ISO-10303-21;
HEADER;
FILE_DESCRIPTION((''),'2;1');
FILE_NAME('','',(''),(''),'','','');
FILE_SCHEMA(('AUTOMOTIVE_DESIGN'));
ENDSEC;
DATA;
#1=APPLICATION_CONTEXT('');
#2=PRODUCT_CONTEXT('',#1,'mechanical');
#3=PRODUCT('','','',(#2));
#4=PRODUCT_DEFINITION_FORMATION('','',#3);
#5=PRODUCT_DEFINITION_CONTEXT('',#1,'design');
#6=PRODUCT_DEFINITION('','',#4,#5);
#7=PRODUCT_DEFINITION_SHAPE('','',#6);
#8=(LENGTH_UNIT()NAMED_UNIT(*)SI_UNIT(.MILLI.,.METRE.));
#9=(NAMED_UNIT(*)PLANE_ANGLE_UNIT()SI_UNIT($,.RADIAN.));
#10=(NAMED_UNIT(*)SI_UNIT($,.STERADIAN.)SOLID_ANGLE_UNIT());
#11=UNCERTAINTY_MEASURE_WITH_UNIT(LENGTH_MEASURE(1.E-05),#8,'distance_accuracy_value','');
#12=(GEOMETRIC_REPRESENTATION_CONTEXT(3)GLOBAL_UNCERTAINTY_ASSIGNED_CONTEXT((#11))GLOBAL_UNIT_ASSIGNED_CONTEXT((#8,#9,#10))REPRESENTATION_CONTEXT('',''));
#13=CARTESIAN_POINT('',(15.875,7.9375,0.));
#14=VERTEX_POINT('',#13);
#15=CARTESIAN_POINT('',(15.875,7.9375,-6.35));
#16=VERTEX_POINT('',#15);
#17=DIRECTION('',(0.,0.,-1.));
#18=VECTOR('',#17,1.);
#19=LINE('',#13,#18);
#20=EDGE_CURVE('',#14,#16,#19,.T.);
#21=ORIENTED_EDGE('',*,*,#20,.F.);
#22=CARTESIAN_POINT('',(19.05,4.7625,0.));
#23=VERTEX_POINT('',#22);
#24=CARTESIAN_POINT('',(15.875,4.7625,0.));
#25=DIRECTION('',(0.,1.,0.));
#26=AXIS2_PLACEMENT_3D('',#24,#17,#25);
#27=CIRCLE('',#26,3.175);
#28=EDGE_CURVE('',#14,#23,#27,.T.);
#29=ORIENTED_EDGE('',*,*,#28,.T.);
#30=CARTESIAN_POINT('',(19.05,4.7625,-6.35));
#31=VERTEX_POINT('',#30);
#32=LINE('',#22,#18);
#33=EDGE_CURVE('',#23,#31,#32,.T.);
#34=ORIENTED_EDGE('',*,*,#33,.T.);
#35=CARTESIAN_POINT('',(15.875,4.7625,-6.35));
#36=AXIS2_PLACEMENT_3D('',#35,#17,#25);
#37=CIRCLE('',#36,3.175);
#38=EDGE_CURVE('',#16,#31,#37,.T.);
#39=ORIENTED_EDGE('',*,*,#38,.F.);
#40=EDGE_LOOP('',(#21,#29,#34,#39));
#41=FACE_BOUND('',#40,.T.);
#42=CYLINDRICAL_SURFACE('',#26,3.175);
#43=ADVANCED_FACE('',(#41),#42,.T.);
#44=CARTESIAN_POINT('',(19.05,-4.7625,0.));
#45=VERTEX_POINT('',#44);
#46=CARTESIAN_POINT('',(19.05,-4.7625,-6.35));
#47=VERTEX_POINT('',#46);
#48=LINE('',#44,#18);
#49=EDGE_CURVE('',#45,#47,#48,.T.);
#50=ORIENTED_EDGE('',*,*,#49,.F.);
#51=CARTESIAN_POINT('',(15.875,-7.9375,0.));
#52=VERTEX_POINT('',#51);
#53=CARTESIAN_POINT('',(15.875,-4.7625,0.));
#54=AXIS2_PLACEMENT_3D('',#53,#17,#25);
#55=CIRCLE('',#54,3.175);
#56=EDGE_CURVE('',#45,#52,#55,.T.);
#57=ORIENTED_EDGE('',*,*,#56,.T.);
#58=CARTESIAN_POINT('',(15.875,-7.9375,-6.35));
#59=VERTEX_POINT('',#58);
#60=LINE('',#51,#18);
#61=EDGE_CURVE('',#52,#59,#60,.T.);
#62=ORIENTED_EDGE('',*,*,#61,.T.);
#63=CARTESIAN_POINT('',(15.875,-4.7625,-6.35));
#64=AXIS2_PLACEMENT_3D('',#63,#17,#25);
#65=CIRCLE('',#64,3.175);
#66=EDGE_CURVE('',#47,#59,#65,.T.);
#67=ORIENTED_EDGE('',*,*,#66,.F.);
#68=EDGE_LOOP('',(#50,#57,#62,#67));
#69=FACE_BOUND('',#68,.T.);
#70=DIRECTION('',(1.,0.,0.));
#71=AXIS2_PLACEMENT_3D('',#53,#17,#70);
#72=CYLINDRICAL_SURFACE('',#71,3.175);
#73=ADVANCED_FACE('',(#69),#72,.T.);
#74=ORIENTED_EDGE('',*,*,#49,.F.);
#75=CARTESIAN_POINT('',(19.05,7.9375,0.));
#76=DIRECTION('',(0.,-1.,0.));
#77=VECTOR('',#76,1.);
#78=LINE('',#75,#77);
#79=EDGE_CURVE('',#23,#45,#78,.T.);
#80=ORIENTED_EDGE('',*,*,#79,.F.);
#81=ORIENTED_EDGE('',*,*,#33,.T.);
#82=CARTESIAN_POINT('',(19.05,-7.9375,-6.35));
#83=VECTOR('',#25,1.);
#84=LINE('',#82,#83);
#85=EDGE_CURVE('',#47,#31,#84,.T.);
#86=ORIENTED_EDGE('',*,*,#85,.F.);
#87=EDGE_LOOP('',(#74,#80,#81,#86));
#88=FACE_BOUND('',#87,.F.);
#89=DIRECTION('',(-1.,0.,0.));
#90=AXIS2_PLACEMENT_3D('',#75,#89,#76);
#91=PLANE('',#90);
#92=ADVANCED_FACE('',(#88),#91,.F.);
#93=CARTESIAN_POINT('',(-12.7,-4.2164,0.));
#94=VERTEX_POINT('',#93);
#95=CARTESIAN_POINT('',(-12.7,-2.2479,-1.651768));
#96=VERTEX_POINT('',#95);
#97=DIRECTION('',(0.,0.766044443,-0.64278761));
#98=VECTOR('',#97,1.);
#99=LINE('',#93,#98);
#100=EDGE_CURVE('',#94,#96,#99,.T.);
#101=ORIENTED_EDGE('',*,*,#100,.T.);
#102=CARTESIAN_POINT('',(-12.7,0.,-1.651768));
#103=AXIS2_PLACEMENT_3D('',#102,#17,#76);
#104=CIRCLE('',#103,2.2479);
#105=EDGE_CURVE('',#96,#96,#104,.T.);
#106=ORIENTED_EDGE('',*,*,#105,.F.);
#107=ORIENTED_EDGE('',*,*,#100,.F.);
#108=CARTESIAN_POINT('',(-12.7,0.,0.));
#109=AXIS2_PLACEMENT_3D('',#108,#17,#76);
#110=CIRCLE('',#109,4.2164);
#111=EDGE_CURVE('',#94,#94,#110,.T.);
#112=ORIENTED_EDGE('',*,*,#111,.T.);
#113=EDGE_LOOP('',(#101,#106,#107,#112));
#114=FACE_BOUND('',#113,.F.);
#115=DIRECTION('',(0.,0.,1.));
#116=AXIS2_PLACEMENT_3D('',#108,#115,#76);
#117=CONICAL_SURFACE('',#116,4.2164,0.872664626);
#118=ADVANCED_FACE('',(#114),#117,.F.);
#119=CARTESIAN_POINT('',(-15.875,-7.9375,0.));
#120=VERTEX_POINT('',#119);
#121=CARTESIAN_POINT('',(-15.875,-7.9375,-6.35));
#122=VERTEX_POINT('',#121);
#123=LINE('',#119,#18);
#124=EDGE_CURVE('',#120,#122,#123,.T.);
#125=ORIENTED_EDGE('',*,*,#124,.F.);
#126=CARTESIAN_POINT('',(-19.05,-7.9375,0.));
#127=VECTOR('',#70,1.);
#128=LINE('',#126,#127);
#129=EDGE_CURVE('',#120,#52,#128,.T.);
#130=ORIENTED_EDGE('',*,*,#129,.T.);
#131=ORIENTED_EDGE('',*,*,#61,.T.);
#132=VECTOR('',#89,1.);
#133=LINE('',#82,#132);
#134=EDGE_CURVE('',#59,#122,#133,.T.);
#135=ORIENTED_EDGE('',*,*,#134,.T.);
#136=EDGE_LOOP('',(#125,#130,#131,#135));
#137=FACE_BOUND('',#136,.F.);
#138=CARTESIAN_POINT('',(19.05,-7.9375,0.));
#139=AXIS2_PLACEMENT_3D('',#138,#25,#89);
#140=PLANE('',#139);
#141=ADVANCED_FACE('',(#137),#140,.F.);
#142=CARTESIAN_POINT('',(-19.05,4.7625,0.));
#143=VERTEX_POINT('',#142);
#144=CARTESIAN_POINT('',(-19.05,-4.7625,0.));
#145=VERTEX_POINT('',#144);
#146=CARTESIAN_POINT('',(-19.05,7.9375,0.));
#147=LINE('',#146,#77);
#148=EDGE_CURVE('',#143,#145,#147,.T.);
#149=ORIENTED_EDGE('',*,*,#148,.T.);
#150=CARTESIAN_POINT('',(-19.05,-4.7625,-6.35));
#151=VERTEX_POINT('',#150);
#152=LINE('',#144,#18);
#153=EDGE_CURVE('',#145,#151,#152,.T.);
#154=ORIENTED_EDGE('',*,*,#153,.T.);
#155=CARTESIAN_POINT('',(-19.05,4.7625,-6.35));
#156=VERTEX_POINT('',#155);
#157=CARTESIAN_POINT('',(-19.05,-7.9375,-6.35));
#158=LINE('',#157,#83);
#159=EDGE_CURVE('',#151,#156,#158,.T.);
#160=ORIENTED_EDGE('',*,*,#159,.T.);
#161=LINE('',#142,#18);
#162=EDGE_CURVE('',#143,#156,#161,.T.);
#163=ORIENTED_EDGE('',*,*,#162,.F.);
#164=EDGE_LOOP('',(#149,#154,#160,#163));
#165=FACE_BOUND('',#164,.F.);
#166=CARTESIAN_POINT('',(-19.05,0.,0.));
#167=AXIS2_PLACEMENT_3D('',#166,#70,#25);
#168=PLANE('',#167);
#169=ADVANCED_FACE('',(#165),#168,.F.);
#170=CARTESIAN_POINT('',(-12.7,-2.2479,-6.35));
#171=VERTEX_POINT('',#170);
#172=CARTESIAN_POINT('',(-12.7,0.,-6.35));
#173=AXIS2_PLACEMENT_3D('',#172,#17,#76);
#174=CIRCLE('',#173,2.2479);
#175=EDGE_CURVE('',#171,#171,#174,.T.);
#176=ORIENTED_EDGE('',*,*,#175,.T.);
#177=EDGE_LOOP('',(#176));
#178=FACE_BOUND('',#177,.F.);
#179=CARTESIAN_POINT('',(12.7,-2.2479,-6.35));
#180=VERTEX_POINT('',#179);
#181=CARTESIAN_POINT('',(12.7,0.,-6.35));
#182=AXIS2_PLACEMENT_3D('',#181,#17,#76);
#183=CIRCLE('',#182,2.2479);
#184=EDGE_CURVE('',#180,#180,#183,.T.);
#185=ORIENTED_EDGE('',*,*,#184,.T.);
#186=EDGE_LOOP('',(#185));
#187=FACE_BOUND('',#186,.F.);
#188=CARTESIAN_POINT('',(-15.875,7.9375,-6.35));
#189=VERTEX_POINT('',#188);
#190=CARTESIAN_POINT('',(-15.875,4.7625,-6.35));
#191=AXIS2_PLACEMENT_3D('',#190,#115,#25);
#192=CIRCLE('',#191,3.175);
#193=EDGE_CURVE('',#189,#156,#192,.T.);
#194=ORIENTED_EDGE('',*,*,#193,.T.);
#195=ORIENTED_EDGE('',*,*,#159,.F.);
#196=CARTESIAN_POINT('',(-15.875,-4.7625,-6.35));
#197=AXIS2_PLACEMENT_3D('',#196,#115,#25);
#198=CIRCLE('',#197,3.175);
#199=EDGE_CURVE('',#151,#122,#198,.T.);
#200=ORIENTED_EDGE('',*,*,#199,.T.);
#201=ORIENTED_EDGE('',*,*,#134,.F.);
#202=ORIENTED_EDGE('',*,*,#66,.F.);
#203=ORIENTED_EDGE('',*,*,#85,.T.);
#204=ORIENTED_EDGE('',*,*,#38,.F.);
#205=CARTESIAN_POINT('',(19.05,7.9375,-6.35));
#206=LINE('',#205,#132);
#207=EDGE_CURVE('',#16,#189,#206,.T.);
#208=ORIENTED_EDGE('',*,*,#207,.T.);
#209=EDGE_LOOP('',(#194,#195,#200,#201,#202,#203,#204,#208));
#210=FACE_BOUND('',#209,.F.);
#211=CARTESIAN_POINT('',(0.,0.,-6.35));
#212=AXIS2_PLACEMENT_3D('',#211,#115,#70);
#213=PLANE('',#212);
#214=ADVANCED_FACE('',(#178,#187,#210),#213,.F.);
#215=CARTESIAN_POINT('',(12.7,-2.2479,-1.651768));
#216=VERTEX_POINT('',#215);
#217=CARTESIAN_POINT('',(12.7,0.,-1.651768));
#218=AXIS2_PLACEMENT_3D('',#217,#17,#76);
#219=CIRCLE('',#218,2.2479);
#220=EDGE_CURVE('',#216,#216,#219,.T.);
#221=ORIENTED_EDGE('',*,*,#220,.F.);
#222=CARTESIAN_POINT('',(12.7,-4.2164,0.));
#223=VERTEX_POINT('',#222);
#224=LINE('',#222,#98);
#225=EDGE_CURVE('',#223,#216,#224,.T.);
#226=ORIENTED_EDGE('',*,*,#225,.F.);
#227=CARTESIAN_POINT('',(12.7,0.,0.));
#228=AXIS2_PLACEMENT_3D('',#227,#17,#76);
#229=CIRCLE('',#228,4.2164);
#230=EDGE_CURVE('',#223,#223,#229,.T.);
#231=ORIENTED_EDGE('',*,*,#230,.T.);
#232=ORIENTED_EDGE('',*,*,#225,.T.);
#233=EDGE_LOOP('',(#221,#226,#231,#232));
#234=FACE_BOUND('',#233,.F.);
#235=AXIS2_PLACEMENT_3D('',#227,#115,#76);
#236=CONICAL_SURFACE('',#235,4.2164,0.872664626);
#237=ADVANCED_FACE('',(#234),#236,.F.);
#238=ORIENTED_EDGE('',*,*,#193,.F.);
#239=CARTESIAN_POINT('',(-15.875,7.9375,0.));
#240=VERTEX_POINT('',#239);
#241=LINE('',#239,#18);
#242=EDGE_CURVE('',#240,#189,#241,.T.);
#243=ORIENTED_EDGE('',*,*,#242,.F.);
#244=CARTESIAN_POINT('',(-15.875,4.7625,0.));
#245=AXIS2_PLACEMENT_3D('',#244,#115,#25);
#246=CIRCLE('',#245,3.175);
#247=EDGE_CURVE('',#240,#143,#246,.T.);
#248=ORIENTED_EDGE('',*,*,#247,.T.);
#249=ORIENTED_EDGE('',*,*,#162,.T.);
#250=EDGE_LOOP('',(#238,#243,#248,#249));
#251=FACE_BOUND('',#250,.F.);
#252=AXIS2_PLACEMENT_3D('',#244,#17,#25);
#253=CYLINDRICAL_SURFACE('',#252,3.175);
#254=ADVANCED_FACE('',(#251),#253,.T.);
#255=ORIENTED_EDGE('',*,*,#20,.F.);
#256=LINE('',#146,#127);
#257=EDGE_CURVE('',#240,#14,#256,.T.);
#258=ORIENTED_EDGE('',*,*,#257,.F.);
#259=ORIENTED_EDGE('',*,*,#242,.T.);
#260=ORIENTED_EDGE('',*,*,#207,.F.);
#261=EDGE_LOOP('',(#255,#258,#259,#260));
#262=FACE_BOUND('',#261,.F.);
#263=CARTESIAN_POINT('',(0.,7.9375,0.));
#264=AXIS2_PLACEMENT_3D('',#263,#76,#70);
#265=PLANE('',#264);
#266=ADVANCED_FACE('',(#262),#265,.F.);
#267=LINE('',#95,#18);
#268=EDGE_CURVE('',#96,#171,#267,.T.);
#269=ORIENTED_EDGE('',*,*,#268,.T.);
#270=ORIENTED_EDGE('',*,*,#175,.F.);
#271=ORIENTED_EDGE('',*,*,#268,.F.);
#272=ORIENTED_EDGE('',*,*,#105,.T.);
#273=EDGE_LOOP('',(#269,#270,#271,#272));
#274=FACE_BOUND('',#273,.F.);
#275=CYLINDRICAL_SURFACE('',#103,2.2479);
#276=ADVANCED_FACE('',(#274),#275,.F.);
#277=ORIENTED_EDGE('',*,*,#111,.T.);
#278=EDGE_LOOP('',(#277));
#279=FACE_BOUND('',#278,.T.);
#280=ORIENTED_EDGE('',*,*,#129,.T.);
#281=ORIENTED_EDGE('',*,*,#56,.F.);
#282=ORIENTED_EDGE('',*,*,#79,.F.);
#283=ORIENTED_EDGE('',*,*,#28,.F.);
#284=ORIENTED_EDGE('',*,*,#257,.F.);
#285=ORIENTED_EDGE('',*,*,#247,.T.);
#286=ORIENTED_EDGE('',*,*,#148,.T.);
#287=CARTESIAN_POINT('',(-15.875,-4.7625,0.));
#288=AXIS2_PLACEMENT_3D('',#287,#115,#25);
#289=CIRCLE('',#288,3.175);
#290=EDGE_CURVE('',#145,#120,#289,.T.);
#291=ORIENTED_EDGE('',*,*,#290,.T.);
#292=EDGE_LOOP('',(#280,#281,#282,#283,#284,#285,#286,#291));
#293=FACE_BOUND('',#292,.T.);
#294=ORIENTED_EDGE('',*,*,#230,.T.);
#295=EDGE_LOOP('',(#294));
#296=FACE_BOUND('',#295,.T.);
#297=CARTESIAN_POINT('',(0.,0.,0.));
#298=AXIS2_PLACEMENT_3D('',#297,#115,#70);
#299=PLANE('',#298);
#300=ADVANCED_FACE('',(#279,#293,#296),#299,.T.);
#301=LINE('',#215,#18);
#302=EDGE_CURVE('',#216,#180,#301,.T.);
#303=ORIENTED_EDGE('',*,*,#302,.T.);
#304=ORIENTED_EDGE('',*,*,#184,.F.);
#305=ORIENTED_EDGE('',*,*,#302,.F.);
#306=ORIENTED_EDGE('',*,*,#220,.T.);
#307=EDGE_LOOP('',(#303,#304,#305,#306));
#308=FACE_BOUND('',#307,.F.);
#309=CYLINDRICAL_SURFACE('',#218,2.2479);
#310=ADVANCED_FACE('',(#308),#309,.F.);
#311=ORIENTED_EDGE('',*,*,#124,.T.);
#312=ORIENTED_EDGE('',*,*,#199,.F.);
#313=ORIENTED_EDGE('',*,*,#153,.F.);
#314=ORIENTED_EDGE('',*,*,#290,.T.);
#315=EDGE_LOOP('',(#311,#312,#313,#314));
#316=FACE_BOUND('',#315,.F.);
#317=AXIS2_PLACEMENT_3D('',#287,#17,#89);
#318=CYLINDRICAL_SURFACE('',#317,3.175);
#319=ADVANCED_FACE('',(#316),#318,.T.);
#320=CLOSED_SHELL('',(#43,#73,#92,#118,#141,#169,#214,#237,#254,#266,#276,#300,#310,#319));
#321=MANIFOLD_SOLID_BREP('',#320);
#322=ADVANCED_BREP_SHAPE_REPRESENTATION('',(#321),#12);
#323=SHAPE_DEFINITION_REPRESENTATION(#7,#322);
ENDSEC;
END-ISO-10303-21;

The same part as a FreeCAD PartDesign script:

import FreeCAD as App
import Part
import Sketcher
Q = App.Units.Quantity


def edges_at(feature, points):
    """Names of the edges that pass closest to the given points."""
    edges = feature.Shape.Edges
    near = lambda p: min(range(len(edges)), key=lambda i: edges[i].distToShape(Part.Vertex(*p))[0])
    return sorted({f"Edge{near(p) + 1}" for p in points})


def add_polygon(sketch, points):
    """Adds a closed chain of lines whose ends are joined by coincident constraints."""
    first, n = sketch.GeometryCount, len(points)
    for a, b in zip(points, points[1:] + points[:1]):
        sketch.addGeometry(Part.LineSegment(App.Vector(*a, 0), App.Vector(*b, 0)), False)
    for i in range(n):
        sketch.addConstraint(Sketcher.Constraint("Coincident", first + i, 2, first + (i + 1) % n, 1))

doc = App.newDocument("Part")
body = doc.addObject("PartDesign::Body", "Body")

sketch1 = doc.addObject("Sketcher::SketchObject", "Sketch")
body.addObject(sketch1)
sketch1.AttachmentSupport = (doc.XY_Plane, [""])
sketch1.MapMode = "FlatFace"
add_polygon(sketch1, [(19.05, 7.9375), (-19.05, 7.9375), (-19.05, -7.9375), (19.05, -7.9375)])
sketch1.addConstraint([
    Sketcher.Constraint("Horizontal", 0),
    Sketcher.Constraint("Vertical", 1),
    Sketcher.Constraint("Horizontal", 2),
    Sketcher.Constraint("Vertical", 3),
    Sketcher.Constraint("Symmetric", 0, 2, 2, 2, -1, 1),
    Sketcher.Constraint("DistanceX", 0, 2, 0, 1, Q("1.5 in")),
    Sketcher.Constraint("DistanceY", 1, 2, 1, 1, Q("0.625 in")),
])
pad1 = doc.addObject("PartDesign::Pad", "Pad")
body.addObject(pad1)
pad1.Profile = sketch1
pad1.Length = Q("0.25 in")
pad1.Reversed = True

sketch2 = doc.addObject("Sketcher::SketchObject", "Sketch001")
body.addObject(sketch2)
sketch2.AttachmentSupport = (doc.XY_Plane, [""])
sketch2.MapMode = "FlatFace"
sketch2.addGeometry([
    Part.Circle(App.Vector(-12.7, 0, 0), App.Vector(0, 0, 1), 2.2479),
    Part.Circle(App.Vector(12.7, 0, 0), App.Vector(0, 0, 1), 2.2479),
], False)
sketch2.addConstraint([
    Sketcher.Constraint("Equal", 0, 1),
    Sketcher.Constraint("Symmetric", 0, 3, 1, 3, -1, 1),
    Sketcher.Constraint("PointOnObject", 0, 3, -1),
    Sketcher.Constraint("Diameter", 0, Q("0.177 in")),
    Sketcher.Constraint("DistanceX", 0, 3, 1, 3, Q("1 in")),
])
doc.recompute()
hole = doc.addObject("PartDesign::Hole", "Hole")
body.addObject(hole)
hole.Profile = sketch2
hole.ThreadType = "None"
hole.Diameter = Q("0.177 in")
hole.DepthType = "ThroughAll"
hole.HoleCutType = "Countersink"
hole.HoleCutDiameter = Q("0.332 in")
hole.HoleCutCountersinkAngle = 100
doc.recompute()

fillet = doc.addObject("PartDesign::Fillet", "Fillet")
body.addObject(fillet)
fillet.Base = (hole, edges_at(hole, [
    (-19.05, 7.938, -3.175),
    (19.05, 7.938, -3.175),
    (19.05, -7.938, -3.175),
    (-19.05, -7.938, -3.175),
]))
fillet.Radius = Q("0.125 in")

doc.recompute()
